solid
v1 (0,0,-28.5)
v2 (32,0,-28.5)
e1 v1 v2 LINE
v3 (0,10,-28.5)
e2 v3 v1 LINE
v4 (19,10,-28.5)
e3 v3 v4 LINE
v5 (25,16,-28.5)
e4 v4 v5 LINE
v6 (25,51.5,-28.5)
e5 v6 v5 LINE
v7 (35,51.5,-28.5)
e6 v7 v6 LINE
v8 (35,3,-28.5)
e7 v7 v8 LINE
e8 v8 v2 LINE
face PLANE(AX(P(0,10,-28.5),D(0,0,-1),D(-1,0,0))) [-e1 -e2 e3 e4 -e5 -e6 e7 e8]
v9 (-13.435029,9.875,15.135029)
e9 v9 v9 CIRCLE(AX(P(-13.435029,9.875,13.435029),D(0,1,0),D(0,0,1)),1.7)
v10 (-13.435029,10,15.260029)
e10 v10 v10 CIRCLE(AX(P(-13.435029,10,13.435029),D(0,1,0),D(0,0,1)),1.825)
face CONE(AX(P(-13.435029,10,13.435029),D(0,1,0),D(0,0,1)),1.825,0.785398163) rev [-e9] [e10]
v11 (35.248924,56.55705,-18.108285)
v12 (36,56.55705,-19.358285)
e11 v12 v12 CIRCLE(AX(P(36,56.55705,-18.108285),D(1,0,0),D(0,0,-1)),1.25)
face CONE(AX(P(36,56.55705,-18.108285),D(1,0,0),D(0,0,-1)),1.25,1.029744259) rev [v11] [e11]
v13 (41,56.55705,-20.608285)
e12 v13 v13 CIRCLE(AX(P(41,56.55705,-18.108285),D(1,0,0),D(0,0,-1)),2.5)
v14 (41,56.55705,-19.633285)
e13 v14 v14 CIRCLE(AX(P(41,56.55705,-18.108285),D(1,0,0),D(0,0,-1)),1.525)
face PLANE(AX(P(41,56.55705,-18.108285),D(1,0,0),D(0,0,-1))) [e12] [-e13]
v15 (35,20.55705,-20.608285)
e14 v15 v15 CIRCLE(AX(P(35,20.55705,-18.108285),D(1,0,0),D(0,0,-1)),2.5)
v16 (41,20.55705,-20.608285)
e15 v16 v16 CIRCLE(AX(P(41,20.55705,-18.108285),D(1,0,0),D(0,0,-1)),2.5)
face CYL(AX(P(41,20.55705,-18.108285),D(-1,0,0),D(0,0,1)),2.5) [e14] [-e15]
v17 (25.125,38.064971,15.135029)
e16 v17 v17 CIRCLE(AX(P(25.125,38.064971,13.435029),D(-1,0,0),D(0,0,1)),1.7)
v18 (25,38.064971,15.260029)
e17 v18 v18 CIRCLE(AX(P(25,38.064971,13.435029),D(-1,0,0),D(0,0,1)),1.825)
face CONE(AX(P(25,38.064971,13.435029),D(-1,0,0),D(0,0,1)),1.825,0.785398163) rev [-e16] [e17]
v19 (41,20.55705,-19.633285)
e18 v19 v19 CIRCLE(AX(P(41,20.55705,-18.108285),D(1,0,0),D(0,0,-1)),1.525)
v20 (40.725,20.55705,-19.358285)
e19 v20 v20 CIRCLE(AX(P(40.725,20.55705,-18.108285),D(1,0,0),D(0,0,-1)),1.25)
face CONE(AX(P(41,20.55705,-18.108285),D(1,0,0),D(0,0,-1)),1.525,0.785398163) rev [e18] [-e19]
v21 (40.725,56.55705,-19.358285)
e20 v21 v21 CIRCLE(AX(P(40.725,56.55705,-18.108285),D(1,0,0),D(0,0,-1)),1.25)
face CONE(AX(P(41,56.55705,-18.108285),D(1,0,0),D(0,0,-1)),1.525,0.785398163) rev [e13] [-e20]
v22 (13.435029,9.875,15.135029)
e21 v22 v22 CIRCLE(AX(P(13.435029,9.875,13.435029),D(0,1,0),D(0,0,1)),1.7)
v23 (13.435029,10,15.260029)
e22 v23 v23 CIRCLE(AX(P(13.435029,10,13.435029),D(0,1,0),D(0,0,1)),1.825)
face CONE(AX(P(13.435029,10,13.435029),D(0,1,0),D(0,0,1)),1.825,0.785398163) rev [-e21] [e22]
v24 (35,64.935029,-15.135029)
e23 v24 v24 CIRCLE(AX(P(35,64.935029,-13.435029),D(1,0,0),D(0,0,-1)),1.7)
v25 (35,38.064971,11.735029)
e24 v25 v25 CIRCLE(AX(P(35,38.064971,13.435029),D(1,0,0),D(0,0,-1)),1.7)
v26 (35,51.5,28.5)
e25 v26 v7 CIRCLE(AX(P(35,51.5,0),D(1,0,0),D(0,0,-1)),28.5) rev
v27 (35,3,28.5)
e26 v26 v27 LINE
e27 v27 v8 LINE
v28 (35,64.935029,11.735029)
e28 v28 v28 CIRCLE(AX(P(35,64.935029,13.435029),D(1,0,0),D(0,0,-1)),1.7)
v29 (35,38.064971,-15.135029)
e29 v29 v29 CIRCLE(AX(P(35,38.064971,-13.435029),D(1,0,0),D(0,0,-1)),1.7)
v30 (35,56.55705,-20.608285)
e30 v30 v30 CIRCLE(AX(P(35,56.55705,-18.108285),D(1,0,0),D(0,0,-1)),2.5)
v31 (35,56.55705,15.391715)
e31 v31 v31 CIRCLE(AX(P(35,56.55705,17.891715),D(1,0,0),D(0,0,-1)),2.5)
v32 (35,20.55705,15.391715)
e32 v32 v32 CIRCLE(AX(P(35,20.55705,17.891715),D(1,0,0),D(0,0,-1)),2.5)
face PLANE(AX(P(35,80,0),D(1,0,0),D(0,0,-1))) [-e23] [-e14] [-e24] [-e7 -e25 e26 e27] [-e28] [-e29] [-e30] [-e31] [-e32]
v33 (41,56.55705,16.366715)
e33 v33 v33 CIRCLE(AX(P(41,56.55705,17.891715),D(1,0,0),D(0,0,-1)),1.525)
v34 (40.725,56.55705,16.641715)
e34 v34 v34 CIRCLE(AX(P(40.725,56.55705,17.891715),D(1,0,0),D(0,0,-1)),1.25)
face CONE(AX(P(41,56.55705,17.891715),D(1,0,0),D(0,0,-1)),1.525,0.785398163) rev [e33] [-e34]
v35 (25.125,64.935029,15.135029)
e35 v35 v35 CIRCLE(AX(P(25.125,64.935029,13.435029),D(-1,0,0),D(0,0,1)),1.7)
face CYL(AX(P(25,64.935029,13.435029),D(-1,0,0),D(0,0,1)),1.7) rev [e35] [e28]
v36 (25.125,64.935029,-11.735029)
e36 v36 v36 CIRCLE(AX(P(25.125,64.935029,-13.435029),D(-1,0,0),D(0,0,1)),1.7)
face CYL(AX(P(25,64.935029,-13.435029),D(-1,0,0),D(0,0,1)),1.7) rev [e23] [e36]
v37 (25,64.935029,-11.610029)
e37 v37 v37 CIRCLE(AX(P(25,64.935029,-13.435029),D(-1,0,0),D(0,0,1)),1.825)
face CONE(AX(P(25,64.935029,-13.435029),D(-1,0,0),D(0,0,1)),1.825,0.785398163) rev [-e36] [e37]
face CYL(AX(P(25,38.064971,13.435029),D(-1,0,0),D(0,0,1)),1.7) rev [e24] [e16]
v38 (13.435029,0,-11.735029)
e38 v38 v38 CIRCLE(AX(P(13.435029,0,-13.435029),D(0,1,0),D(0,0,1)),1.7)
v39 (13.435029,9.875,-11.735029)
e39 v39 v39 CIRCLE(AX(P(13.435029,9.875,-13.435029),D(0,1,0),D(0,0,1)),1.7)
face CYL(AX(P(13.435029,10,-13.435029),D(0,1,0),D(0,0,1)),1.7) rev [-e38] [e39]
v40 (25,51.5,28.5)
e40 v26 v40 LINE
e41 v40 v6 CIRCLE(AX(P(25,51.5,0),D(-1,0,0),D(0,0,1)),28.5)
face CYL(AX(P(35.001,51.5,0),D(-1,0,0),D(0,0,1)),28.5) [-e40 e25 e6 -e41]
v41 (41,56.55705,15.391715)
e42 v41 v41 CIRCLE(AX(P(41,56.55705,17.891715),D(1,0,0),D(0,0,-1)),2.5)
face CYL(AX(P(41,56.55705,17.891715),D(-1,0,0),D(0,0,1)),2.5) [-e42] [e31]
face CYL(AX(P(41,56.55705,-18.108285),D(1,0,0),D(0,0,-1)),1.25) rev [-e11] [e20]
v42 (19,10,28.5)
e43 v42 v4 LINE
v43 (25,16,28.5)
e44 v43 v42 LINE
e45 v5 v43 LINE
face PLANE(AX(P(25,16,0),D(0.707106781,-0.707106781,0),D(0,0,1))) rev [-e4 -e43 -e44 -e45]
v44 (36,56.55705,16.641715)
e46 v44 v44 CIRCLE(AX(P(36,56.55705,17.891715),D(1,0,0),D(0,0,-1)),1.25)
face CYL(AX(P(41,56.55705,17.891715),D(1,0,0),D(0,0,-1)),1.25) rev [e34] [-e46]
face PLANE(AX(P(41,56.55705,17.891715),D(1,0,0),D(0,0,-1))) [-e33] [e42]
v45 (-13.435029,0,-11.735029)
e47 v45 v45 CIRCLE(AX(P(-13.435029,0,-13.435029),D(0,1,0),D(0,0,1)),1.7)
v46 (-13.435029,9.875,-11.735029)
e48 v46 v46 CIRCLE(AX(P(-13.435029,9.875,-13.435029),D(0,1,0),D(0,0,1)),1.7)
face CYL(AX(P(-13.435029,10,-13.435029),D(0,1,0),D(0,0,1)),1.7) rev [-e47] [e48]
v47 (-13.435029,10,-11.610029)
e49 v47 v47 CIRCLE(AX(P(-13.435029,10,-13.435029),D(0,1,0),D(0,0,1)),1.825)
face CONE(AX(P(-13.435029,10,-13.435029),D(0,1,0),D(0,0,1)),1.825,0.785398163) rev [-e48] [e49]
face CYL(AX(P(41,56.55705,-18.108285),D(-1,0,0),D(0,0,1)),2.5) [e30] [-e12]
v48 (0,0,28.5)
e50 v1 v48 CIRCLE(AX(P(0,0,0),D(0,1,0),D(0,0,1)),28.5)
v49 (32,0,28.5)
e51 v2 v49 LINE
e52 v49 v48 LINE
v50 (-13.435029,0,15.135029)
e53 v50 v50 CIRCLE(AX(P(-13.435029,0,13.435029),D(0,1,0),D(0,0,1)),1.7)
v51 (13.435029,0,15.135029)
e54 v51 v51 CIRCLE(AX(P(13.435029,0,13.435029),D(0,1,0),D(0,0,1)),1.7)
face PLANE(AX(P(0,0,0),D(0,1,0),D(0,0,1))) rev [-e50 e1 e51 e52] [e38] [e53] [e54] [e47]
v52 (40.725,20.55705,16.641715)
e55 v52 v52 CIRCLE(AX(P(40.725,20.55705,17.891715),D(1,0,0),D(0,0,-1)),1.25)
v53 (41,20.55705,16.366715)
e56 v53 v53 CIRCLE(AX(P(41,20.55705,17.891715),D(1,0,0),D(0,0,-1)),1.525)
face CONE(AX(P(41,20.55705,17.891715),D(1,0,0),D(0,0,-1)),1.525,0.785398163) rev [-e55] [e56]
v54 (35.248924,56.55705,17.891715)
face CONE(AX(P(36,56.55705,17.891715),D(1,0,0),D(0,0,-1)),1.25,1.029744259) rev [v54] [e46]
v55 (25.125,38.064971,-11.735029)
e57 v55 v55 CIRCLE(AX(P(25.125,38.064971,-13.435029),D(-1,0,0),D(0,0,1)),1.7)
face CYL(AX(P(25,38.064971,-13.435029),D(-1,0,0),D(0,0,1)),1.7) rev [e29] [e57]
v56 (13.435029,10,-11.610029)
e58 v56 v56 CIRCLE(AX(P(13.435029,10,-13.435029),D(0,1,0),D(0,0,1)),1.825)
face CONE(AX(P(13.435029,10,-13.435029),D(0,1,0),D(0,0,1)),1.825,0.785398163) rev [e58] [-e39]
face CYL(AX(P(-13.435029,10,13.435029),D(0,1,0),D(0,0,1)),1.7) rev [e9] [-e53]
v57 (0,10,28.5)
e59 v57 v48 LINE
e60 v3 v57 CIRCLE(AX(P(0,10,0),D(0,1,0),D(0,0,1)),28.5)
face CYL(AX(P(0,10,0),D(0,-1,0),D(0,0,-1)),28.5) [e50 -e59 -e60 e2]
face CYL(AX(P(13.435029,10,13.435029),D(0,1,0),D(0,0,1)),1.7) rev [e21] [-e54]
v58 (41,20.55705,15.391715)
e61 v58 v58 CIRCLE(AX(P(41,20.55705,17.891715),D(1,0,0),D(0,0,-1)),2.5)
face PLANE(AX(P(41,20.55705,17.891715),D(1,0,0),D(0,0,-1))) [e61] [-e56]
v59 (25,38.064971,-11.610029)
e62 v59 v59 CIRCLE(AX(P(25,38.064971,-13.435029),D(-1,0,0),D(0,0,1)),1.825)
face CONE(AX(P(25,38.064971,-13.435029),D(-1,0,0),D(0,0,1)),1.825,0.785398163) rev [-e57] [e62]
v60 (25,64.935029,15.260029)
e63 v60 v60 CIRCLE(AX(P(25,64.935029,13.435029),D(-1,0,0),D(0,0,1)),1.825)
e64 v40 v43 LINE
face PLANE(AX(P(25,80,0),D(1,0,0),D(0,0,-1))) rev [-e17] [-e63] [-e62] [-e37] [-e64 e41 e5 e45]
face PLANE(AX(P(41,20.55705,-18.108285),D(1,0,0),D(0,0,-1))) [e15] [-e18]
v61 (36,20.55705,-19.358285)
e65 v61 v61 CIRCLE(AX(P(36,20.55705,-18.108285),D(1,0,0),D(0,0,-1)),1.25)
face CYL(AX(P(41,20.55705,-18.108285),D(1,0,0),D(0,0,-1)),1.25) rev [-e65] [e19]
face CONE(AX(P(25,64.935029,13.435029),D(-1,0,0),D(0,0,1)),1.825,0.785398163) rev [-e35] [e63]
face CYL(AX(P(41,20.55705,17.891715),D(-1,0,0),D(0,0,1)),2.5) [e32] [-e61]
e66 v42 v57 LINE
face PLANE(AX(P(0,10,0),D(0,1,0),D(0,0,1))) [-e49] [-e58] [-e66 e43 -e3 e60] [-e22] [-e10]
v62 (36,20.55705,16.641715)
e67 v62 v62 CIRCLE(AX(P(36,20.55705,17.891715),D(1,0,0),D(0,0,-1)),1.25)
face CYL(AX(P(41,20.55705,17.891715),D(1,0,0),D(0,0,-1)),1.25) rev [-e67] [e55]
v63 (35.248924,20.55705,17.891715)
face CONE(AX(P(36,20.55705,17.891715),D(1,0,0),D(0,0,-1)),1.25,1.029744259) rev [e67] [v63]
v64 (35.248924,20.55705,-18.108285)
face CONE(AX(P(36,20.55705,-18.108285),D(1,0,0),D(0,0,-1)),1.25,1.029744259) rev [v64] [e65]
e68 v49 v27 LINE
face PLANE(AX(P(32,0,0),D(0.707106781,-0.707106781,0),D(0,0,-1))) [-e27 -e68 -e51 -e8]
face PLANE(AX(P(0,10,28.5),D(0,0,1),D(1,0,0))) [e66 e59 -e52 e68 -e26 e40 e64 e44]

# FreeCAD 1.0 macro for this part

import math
import FreeCAD as App
import Part
import Sketcher
from FreeCAD import Vector


def edges_at(feature, points):
    """Names of the edges that pass closest to the given points."""
    edges = feature.Shape.Edges
    near = lambda p: min(range(len(edges)), key=lambda i: edges[i].distToShape(Part.Vertex(*p))[0])
    return sorted({f"Edge{near(p) + 1}" for p in points})


def add_polygon(sketch, points):
    """Adds a closed chain of lines whose ends are joined by coincident constraints."""
    first, n = sketch.GeometryCount, len(points)
    for a, b in zip(points, points[1:] + points[:1]):
        sketch.addGeometry(Part.LineSegment(App.Vector(*a, 0), App.Vector(*b, 0)), False)
    for i in range(n):
        sketch.addConstraint(Sketcher.Constraint("Coincident", first + i, 2, first + (i + 1) % n, 1))

doc = App.newDocument("Part")
params = doc.addObject("Spreadsheet::Sheet", "Params")
for row, (alias, value) in enumerate([
    ("sketch1_radius", "28.5 mm"),
    ("sketch1_width", "25 mm"),
    ("pad1_length", "10 mm"),
    ("sketch2_width", "10 mm"),
    ("sketch2_height", "57 mm"),
    ("pad2_length", "80 mm"),
    ("sketch3_diameter", "3.4 mm"),
    ("hole_diameter", "3.4 mm"),
    ("hole_csink_diameter", "3.65 mm"),
    ("sketch4_radius", "28.5 mm"),
    ("sketch5_radius", "28.5 mm"),
    ("sketch6_diameter", "3.4 mm"),
    ("hole2_diameter", "3.4 mm"),
    ("hole2_csink_diameter", "3.65 mm"),
    ("chamfer_size", "3 mm"),
    ("chamfer2_size", "6 mm"),
    ("sketch7_diameter", "5 mm"),
    ("pad3_length", "6 mm"),
    ("sketch8_diameter", "2.5 mm"),
    ("hole3_diameter", "2.5 mm"),
    ("hole3_depth", "5 mm"),
    ("hole3_csink_diameter", "3.05 mm"),
], start=1):
    params.set(f"A{row}", alias)
    params.set(f"B{row}", "=" + value)
    params.setAlias(f"B{row}", alias)

body = doc.addObject("PartDesign::Body", "Body")

# Sketch on XZ plane
sketch1 = body.newObject("Sketcher::SketchObject", "Sketch")
sketch1.AttachmentSupport = (doc.getObject("XZ_Plane"), [""])
sketch1.MapMode = "FlatFace"
sketch1.addGeometry([
    Part.LineSegment(Vector(25, -28, 0), Vector(0, -28, 0)),
    Part.ArcOfCircle(Part.Circle(Vector(0, 0, 0), Vector(0, 0, 1), 28), math.radians(90), math.radians(270)),
    Part.LineSegment(Vector(0, 28, 0), Vector(25, 28, 0)),
    Part.LineSegment(Vector(25, 28, 0), Vector(25, -28, 0)),
], False)
sketch1.addConstraint([
    Sketcher.Constraint("Tangent", 0, 2, 1, 2),
    Sketcher.Constraint("Tangent", 1, 1, 2, 1),
    Sketcher.Constraint("Coincident", 2, 2, 3, 1),
    Sketcher.Constraint("Coincident", 3, 2, 0, 1),
    Sketcher.Constraint("Horizontal", 0),
    Sketcher.Constraint("Horizontal", 2),
    Sketcher.Constraint("Vertical", 3),
    Sketcher.Constraint("Coincident", 1, 3, -1, 1),
    Sketcher.Constraint("Radius", 1, 28.5),
    Sketcher.Constraint("DistanceX", 0, 2, 0, 1, 25.0),
])
sketch1.setExpression("Constraints[8]", "Params.sketch1_radius")
sketch1.setExpression("Constraints[9]", "Params.sketch1_width")
pad1 = body.newObject("PartDesign::Pad", "Pad")
pad1.Profile = sketch1
pad1.setExpression("Length", "Params.pad1_length")
pad1.Reversed = True

# Sketch on XZ plane
sketch2 = body.newObject("Sketcher::SketchObject", "Sketch001")
sketch2.AttachmentSupport = (doc.getObject("XZ_Plane"), [""])
sketch2.MapMode = "FlatFace"
add_polygon(sketch2, [(25, -28), (25, 28), (35, 28), (35, -28)])  # lines 0-3
sketch2.addConstraint([
    Sketcher.Constraint("Vertical", 0),
    Sketcher.Constraint("Horizontal", 1),
    Sketcher.Constraint("Vertical", 2),
    Sketcher.Constraint("Horizontal", 3),
    Sketcher.Constraint("DistanceX", 1, 1, 1, 2, 10.0),
    Sketcher.Constraint("DistanceY", 0, 1, 0, 2, 57.0),
    Sketcher.Constraint("DistanceX", -1, 1, 0, 2, 25.0),
    Sketcher.Constraint("DistanceY", -1, 1, 0, 2, 28.5),
])
sketch2.setExpression("Constraints[8]", "Params.sketch2_width")
sketch2.setExpression("Constraints[9]", "Params.sketch2_height")
pad2 = body.newObject("PartDesign::Pad", "Pad001")
pad2.Profile = sketch2
pad2.setExpression("Length", "Params.pad2_length")
pad2.Reversed = True

# Sketch on XZ plane
sketch3 = body.newObject("Sketcher::SketchObject", "Sketch002")
sketch3.AttachmentSupport = (doc.getObject("XZ_Plane"), [""])
sketch3.MapMode = "FlatFace"
sketch3.AttachmentOffset = App.Placement(Vector(0, 0, -10), App.Rotation())
sketch3.addGeometry([
    Part.Circle(Vector(-13.4, -13.4, 0), Vector(0, 0, 1), 1.7),
    Part.Circle(Vector(13.4, -13.4, 0), Vector(0, 0, 1), 1.7),
    Part.Circle(Vector(13.4, 13.4, 0), Vector(0, 0, 1), 1.7),
    Part.Circle(Vector(-13.4, 13.4, 0), Vector(0, 0, 1), 1.7),
], False)
sketch3.addConstraint([
    Sketcher.Constraint("Equal", 0, 1),
    Sketcher.Constraint("Equal", 1, 2),
    Sketcher.Constraint("Equal", 2, 3),
    Sketcher.Constraint("Symmetric", 0, 3, 2, 3, -1, 1),
    Sketcher.Constraint("Symmetric", 1, 3, 3, 3, -1, 1),
    Sketcher.Constraint("Symmetric", 0, 3, 1, 3, -2),
    Sketcher.Constraint("Diameter", 0, 3.4),
    Sketcher.Constraint("DistanceX", 0, 3, -1, 1, 13.435029),
    Sketcher.Constraint("DistanceY", 0, 3, -1, 1, 13.435029),
])
sketch3.setExpression("Constraints[6]", "Params.sketch3_diameter")
doc.recompute()
hole = body.newObject("PartDesign::Hole", "Hole")
hole.Profile = sketch3
hole.ThreadType = "None"
hole.setExpression("Diameter", "Params.hole_diameter")
hole.DepthType = "ThroughAll"
hole.HoleCutType = "Countersink"
hole.setExpression("HoleCutDiameter", "Params.hole_csink_diameter")
hole.HoleCutCountersinkAngle = 90
hole.Reversed = True

# Sketch on YZ plane
sketch4 = body.newObject("Sketcher::SketchObject", "Sketch003")
sketch4.AttachmentSupport = (doc.getObject("YZ_Plane"), [""])
sketch4.MapMode = "FlatFace"
sketch4.AttachmentOffset = App.Placement(Vector(0, 0, 25), App.Rotation())
sketch4.addGeometry([
    Part.ArcOfCircle(Part.Circle(Vector(52, 0, 0), Vector(0, 0, 1), 28), math.radians(-90), math.radians(0)),
    Part.LineSegment(Vector(80, 0, 0), Vector(80, -28, 0)),
    Part.LineSegment(Vector(80, -28, 0), Vector(52, -28, 0)),
], False)
sketch4.addConstraint([
    Sketcher.Constraint("Tangent", 0, 2, 1, 1),
    Sketcher.Constraint("Coincident", 1, 2, 2, 1),
    Sketcher.Constraint("Tangent", 2, 2, 0, 1),
    Sketcher.Constraint("Vertical", 1),
    Sketcher.Constraint("Horizontal", 2),
    Sketcher.Constraint("PointOnObject", 0, 3, -1),
    Sketcher.Constraint("Radius", 0, 28.5),
    Sketcher.Constraint("DistanceX", -1, 1, 0, 2, 80.0),
])
sketch4.setExpression("Constraints[6]", "Params.sketch4_radius")
pocket1 = body.newObject("PartDesign::Pocket", "Pocket")
pocket1.Profile = sketch4
pocket1.Type = "UpToFirst"
pocket1.Reversed = True

# Sketch on YZ plane
sketch5 = body.newObject("Sketcher::SketchObject", "Sketch004")
sketch5.AttachmentSupport = (doc.getObject("YZ_Plane"), [""])
sketch5.MapMode = "FlatFace"
sketch5.AttachmentOffset = App.Placement(Vector(0, 0, 25), App.Rotation())
sketch5.addGeometry([
    Part.LineSegment(Vector(80, 28, 0), Vector(80, 0, 0)),
    Part.ArcOfCircle(Part.Circle(Vector(52, 0, 0), Vector(0, 0, 1), 28), math.radians(0), math.radians(90)),
    Part.LineSegment(Vector(52, 28, 0), Vector(80, 28, 0)),
], False)
sketch5.addConstraint([
    Sketcher.Constraint("Tangent", 0, 2, 1, 1),
    Sketcher.Constraint("Tangent", 1, 2, 2, 1),
    Sketcher.Constraint("Coincident", 2, 2, 0, 1),
    Sketcher.Constraint("Vertical", 0),
    Sketcher.Constraint("Horizontal", 2),
    Sketcher.Constraint("PointOnObject", 1, 3, -1),
    Sketcher.Constraint("Radius", 1, 28.5),
    Sketcher.Constraint("DistanceX", -1, 1, 0, 2, 80.0),
])
sketch5.setExpression("Constraints[6]", "Params.sketch5_radius")
pocket2 = body.newObject("PartDesign::Pocket", "Pocket001")
pocket2.Profile = sketch5
pocket2.Type = "UpToFirst"
pocket2.Reversed = True

# Sketch on YZ plane
sketch6 = body.newObject("Sketcher::SketchObject", "Sketch005")
sketch6.AttachmentSupport = (doc.getObject("YZ_Plane"), [""])
sketch6.MapMode = "FlatFace"
sketch6.AttachmentOffset = App.Placement(Vector(0, 0, 25), App.Rotation())
sketch6.addGeometry(Part.Circle(Vector(64.9, 13.4, 0), Vector(0, 0, 1), 1.7), False)
sketch6.addConstraint([
    Sketcher.Constraint("Diameter", 0, 3.4),
    Sketcher.Constraint("DistanceX", -1, 1, 0, 3, 64.935029),
    Sketcher.Constraint("DistanceY", -1, 1, 0, 3, 13.435029),
])
sketch6.setExpression("Constraints[0]", "Params.sketch6_diameter")
doc.recompute()
hole2 = body.newObject("PartDesign::Hole", "Hole001")
hole2.Profile = sketch6
hole2.ThreadType = "None"
hole2.setExpression("Diameter", "Params.hole2_diameter")
hole2.DepthType = "ThroughAll"
hole2.HoleCutType = "Countersink"
hole2.setExpression("HoleCutDiameter", "Params.hole2_csink_diameter")
hole2.HoleCutCountersinkAngle = 90
hole2.Reversed = True
doc.recompute()

chamfer = body.newObject("PartDesign::Chamfer", "Chamfer")
chamfer.Base = (hole2, edges_at(hole2, [(35, 0, 0)]))
chamfer.setExpression("Size", "Params.chamfer_size")
doc.recompute()

chamfer2 = body.newObject("PartDesign::Chamfer", "Chamfer001")
chamfer2.Base = (chamfer, edges_at(chamfer, [(25, 10, 0)]))
chamfer2.setExpression("Size", "Params.chamfer2_size")
doc.recompute()

datumline = body.newObject("PartDesign::Line", "DatumLine")
datumline.Placement = App.Placement(Vector(0, 51.5, 0), App.Rotation(Vector(0, 0, 1), Vector(1, 0, 0)))
polarpattern = body.newObject("PartDesign::PolarPattern", "PolarPattern")
polarpattern.Originals = [hole2]
polarpattern.Axis = (datumline, [""])
polarpattern.Angle = 360
polarpattern.Occurrences = 4
body.Tip = polarpattern

# Sketch on YZ plane
sketch7 = body.newObject("Sketcher::SketchObject", "Sketch006")
sketch7.AttachmentSupport = (doc.getObject("YZ_Plane"), [""])
sketch7.MapMode = "FlatFace"
sketch7.AttachmentOffset = App.Placement(Vector(0, 0, 35), App.Rotation())
sketch7.addGeometry([
    Part.Circle(Vector(56.6, 17.9, 0), Vector(0, 0, 1), 2.5),
    Part.Circle(Vector(56.6, -18.1, 0), Vector(0, 0, 1), 2.5),
    Part.Circle(Vector(20.6, -18.1, 0), Vector(0, 0, 1), 2.5),
    Part.Circle(Vector(20.6, 17.9, 0), Vector(0, 0, 1), 2.5),
], False)
sketch7.addConstraint([
    Sketcher.Constraint("Equal", 0, 1),
    Sketcher.Constraint("Equal", 1, 2),
    Sketcher.Constraint("Equal", 2, 3),
    Sketcher.Constraint("Horizontal", 1, 3, 2, 3),
    Sketcher.Constraint("Horizontal", 0, 3, 3, 3),
    Sketcher.Constraint("Vertical", 0, 3, 1, 3),
    Sketcher.Constraint("Vertical", 2, 3, 3, 3),
    Sketcher.Constraint("Diameter", 0, 5.0),
    Sketcher.Constraint("DistanceY", 1, 3, 0, 3, 36.0),
    Sketcher.Constraint("DistanceX", 2, 3, 1, 3, 36.0),
    Sketcher.Constraint("DistanceX", -1, 1, 0, 3, 56.55705),
    Sketcher.Constraint("DistanceY", -1, 1, 0, 3, 17.891715),
])
sketch7.setExpression("Constraints[7]", "Params.sketch7_diameter")
pad3 = body.newObject("PartDesign::Pad", "Pad002")
pad3.Profile = sketch7
pad3.setExpression("Length", "Params.pad3_length")

# Sketch on YZ plane
sketch8 = body.newObject("Sketcher::SketchObject", "Sketch007")
sketch8.AttachmentSupport = (doc.getObject("YZ_Plane"), [""])
sketch8.MapMode = "FlatFace"
sketch8.AttachmentOffset = App.Placement(Vector(0, 0, 41), App.Rotation())
sketch8.addGeometry([
    Part.Circle(Vector(56.6, 17.9, 0), Vector(0, 0, 1), 1.2),
    Part.Circle(Vector(56.6, -18.1, 0), Vector(0, 0, 1), 1.2),
    Part.Circle(Vector(20.6, 17.9, 0), Vector(0, 0, 1), 1.2),
    Part.Circle(Vector(20.6, -18.1, 0), Vector(0, 0, 1), 1.2),
], False)
sketch8.addConstraint([
    Sketcher.Constraint("Equal", 0, 1),
    Sketcher.Constraint("Equal", 1, 2),
    Sketcher.Constraint("Equal", 2, 3),
    Sketcher.Constraint("Horizontal", 0, 3, 2, 3),
    Sketcher.Constraint("Horizontal", 1, 3, 3, 3),
    Sketcher.Constraint("Vertical", 0, 3, 1, 3),
    Sketcher.Constraint("Vertical", 2, 3, 3, 3),
    Sketcher.Constraint("Diameter", 0, 2.5),
    Sketcher.Constraint("DistanceY", 1, 3, 0, 3, 36.0),
    Sketcher.Constraint("DistanceX", 2, 3, 0, 3, 36.0),
    Sketcher.Constraint("DistanceX", -1, 1, 0, 3, 56.55705),
    Sketcher.Constraint("DistanceY", -1, 1, 0, 3, 17.891715),
])
sketch8.setExpression("Constraints[7]", "Params.sketch8_diameter")
doc.recompute()
hole3 = body.newObject("PartDesign::Hole", "Hole002")
hole3.Profile = sketch8
hole3.ThreadType = "None"
hole3.setExpression("Diameter", "Params.hole3_diameter")
hole3.DepthType = "Dimension"
hole3.setExpression("Depth", "Params.hole3_depth")
hole3.DrillPoint = "Angled"
hole3.DrillPointAngle = 118
hole3.HoleCutType = "Countersink"
hole3.setExpression("HoleCutDiameter", "Params.hole3_csink_diameter")
hole3.HoleCutCountersinkAngle = 90

doc.recompute()
